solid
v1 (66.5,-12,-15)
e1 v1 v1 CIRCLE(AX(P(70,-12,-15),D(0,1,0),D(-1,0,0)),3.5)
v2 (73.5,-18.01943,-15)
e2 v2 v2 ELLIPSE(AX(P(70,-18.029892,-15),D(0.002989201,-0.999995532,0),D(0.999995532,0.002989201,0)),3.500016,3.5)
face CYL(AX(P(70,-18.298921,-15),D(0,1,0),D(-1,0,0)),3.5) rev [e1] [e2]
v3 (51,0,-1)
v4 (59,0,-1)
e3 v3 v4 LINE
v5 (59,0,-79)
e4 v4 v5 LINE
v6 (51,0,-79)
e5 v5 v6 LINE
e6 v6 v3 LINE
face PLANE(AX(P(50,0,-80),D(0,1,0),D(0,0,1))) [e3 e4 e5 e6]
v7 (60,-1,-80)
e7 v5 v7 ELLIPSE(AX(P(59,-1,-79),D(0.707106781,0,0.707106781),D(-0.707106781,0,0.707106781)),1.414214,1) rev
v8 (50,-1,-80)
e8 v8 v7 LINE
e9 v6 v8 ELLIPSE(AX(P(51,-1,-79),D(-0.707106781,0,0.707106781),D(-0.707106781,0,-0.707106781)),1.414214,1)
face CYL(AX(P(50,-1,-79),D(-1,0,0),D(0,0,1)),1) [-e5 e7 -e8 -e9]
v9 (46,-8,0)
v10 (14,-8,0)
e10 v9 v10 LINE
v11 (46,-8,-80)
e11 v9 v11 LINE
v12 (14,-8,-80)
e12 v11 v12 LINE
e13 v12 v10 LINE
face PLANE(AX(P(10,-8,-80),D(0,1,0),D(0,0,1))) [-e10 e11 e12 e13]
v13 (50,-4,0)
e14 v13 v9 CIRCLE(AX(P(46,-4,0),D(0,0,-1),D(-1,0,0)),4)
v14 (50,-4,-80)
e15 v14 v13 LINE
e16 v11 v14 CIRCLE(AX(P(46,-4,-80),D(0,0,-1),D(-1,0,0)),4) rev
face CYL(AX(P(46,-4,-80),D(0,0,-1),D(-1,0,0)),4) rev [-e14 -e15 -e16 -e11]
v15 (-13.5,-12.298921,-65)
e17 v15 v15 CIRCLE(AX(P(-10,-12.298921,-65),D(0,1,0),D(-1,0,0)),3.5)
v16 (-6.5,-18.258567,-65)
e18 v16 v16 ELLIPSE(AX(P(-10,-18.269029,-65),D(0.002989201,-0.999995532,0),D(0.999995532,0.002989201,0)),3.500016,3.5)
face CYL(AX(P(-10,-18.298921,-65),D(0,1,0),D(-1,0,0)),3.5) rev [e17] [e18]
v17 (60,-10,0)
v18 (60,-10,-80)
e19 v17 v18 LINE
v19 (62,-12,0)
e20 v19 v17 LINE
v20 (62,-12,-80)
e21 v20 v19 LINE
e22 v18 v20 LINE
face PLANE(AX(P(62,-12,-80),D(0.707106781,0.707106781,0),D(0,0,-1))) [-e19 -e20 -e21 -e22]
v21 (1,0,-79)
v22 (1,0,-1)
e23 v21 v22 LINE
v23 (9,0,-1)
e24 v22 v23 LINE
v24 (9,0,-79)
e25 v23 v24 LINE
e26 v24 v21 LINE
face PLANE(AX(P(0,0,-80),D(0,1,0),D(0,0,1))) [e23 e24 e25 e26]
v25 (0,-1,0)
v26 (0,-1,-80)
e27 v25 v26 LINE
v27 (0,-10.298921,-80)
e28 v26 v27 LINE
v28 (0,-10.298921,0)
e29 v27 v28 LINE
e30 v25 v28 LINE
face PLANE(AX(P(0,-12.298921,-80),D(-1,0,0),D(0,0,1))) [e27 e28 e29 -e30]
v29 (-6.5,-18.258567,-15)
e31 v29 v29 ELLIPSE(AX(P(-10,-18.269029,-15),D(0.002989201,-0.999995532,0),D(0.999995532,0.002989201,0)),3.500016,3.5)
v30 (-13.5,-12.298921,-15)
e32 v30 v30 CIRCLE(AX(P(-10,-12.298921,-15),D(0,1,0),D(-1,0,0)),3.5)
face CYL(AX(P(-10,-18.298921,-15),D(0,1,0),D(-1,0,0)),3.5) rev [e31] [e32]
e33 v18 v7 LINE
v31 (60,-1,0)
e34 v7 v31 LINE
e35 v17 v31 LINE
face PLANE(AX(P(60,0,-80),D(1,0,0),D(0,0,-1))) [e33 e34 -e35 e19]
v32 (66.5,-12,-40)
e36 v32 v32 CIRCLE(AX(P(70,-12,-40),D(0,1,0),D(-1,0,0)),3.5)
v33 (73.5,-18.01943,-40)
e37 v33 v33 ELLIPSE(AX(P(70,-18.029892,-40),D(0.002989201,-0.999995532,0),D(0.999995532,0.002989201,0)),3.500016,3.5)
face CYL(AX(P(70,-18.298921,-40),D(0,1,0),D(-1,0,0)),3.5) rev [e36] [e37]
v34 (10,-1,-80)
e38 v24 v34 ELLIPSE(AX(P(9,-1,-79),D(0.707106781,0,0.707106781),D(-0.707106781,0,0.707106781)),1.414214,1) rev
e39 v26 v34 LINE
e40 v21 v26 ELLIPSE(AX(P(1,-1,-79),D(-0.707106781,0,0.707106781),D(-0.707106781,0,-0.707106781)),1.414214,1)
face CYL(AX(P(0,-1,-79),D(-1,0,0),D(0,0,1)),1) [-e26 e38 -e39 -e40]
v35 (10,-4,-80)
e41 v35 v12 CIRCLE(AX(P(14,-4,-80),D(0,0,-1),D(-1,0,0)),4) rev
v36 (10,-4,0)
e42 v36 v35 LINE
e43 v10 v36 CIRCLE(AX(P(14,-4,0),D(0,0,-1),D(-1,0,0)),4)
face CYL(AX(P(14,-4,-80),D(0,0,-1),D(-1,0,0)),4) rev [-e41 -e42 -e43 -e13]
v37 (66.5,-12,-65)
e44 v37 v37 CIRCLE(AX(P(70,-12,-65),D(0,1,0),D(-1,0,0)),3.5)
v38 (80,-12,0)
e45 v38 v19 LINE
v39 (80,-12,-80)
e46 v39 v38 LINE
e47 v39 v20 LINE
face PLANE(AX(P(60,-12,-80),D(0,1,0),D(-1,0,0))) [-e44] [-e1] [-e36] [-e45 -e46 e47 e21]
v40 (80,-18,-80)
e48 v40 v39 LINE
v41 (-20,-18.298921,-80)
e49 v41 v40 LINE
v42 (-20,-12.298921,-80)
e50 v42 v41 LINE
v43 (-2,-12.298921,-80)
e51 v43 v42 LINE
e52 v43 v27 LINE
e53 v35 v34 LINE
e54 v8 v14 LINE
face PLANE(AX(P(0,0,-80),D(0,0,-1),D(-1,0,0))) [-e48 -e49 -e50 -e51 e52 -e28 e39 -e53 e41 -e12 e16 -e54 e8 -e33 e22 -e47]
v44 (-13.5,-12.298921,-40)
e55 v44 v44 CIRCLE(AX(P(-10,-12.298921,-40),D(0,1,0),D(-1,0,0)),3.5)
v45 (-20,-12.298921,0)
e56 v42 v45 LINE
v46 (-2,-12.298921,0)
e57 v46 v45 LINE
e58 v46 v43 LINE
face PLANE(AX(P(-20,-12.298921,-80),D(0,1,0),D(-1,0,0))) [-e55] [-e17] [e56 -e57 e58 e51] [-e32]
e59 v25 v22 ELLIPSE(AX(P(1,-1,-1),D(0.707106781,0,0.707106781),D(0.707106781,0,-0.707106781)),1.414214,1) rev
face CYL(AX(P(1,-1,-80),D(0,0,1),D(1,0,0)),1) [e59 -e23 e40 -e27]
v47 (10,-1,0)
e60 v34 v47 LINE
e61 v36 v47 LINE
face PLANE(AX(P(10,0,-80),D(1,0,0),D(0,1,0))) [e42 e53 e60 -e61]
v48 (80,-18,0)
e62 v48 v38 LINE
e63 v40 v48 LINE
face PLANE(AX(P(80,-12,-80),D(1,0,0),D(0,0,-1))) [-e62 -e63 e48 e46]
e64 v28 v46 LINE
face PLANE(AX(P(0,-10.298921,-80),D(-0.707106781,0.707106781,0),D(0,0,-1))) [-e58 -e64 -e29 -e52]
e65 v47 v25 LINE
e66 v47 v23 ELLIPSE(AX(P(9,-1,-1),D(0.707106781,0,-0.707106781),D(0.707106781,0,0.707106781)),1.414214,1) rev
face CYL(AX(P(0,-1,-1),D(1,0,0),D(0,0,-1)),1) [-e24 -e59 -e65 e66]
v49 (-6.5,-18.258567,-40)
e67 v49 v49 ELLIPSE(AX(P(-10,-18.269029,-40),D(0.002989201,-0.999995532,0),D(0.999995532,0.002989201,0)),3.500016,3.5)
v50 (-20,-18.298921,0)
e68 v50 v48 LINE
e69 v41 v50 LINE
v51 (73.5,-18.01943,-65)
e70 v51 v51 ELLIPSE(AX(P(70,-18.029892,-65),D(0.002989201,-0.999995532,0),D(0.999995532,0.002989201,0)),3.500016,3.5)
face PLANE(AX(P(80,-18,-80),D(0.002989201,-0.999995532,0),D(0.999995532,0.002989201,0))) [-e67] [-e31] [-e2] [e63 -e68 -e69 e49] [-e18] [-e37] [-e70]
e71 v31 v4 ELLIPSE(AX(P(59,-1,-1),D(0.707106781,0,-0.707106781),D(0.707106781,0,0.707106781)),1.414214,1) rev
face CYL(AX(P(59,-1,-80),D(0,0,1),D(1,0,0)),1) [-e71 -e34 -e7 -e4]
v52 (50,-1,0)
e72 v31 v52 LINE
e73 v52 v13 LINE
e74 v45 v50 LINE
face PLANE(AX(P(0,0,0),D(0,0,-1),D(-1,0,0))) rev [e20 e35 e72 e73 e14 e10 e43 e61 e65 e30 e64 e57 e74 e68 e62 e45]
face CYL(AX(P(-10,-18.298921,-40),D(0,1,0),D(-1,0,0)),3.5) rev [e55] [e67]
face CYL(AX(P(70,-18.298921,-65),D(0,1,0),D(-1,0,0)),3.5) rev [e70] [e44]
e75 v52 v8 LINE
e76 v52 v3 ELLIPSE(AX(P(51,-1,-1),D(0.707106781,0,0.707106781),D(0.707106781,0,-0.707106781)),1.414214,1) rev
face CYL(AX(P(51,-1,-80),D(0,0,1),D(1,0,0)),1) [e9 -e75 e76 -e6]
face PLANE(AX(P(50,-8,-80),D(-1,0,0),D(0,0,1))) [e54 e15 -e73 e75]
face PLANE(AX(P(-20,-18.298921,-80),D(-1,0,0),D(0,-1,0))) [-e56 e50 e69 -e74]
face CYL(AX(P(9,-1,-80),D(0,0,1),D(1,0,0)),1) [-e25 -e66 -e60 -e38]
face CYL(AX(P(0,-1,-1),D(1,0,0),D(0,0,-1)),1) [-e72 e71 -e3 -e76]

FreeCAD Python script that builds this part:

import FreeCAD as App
import Part
import Sketcher

V = App.Vector


def edges_at(feature, points):
    """Names of the edges that pass closest to the given points."""
    edges = feature.Shape.Edges
    near = lambda p: min(range(len(edges)), key=lambda i: edges[i].distToShape(Part.Vertex(*p))[0])
    return sorted({f"Edge{near(p) + 1}" for p in points})


def add_polygon(sketch, points):
    """Adds a closed chain of lines whose ends are joined by coincident constraints."""
    first, n = sketch.GeometryCount, len(points)
    for a, b in zip(points, points[1:] + points[:1]):
        sketch.addGeometry(Part.LineSegment(App.Vector(*a, 0), App.Vector(*b, 0)), False)
    for i in range(n):
        sketch.addConstraint(Sketcher.Constraint("Coincident", first + i, 2, first + (i + 1) % n, 1))

doc = App.newDocument("Part")
body = doc.addObject("PartDesign::Body", "Body")

# Sketch on XY plane
sketch1 = body.newObject("Sketcher::SketchObject", "Sketch")
sketch1.AttachmentSupport = (doc.getObject("XY_Plane"), [""])
sketch1.MapMode = "FlatFace"
add_polygon(sketch1, [(10, 0), (0, 0), (0, -12), (-20, -12), (-20, -18), (80, -18), (80, -12), (60, -12), (60, 0), (50, 0), (50, -8), (10, -8)])  # lines 0-11
sketch1.addConstraint(Sketcher.Constraint("Horizontal", 0))
sketch1.addConstraint(Sketcher.Constraint("Vertical", 1))
sketch1.addConstraint(Sketcher.Constraint("Horizontal", 2))
sketch1.addConstraint(Sketcher.Constraint("Vertical", 3))
sketch1.addConstraint(Sketcher.Constraint("Vertical", 5))
sketch1.addConstraint(Sketcher.Constraint("Horizontal", 6))
sketch1.addConstraint(Sketcher.Constraint("Vertical", 7))
sketch1.addConstraint(Sketcher.Constraint("Horizontal", 8))
sketch1.addConstraint(Sketcher.Constraint("Vertical", 9))
sketch1.addConstraint(Sketcher.Constraint("Horizontal", 10))
sketch1.addConstraint(Sketcher.Constraint("Vertical", 11))
sketch1.addConstraint(Sketcher.Constraint("Coincident", 0, 2, -1, 1))
sketch1.addConstraint(Sketcher.Constraint("PointOnObject", 7, 2, -1))
sketch1.addConstraint(Sketcher.Constraint("Equal", 2, 6))
sketch1.addConstraint(Sketcher.Constraint("Equal", 0, 8))
sketch1.addConstraint(Sketcher.Constraint("Equal", 3, 5))
sketch1.addConstraint(Sketcher.Constraint("DistanceX", 0, 2, 0, 1, 10.0))
sketch1.addConstraint(Sketcher.Constraint("DistanceX", 2, 2, 2, 1, 20.0))
sketch1.addConstraint(Sketcher.Constraint("DistanceX", 10, 2, 10, 1, 40.0))
sketch1.addConstraint(Sketcher.Constraint("DistanceY", 3, 2, 3, 1, 6.0))
sketch1.addConstraint(Sketcher.Constraint("DistanceY", 7, 1, 7, 2, 12.0))
sketch1.addConstraint(Sketcher.Constraint("DistanceY", 9, 2, 9, 1, 8.0))
sketch1.addConstraint(Sketcher.Constraint("DistanceY", 1, 2, 1, 1, 12.298921))
pad1 = body.newObject("PartDesign::Pad", "Pad")
pad1.Profile = sketch1
pad1.Length = 80
pad1.Reversed = True

# Sketch on XZ plane
sketch2 = body.newObject("Sketcher::SketchObject", "Sketch001")
sketch2.AttachmentSupport = (doc.getObject("XZ_Plane"), [""])
sketch2.MapMode = "FlatFace"
sketch2.AttachmentOffset = App.Placement(V(0, 0, 12.298921), App.Rotation())
sketch2.addGeometry(Part.Circle(V(-10, -65, 0), V(0, 0, 1), 3.5), False)
sketch2.addGeometry(Part.Circle(V(-10, -40, 0), V(0, 0, 1), 3.5), False)
sketch2.addGeometry(Part.Circle(V(-10, -15, 0), V(0, 0, 1), 3.5), False)
sketch2.addConstraint(Sketcher.Constraint("Equal", 0, 1))
sketch2.addConstraint(Sketcher.Constraint("Equal", 1, 2))
sketch2.addConstraint(Sketcher.Constraint("Vertical", 0, 3, 1, 3))
sketch2.addConstraint(Sketcher.Constraint("Vertical", 1, 3, 2, 3))
sketch2.addConstraint(Sketcher.Constraint("Diameter", 0, 7.0))
sketch2.addConstraint(Sketcher.Constraint("DistanceX", 0, 3, -1, 1, 10.0))
sketch2.addConstraint(Sketcher.Constraint("DistanceY", 0, 3, -1, 1, 65.0))
sketch2.addConstraint(Sketcher.Constraint("DistanceY", 1, 3, -1, 1, 40.0))
sketch2.addConstraint(Sketcher.Constraint("DistanceY", 2, 3, -1, 1, 15.0))
pocket1 = body.newObject("PartDesign::Pocket", "Pocket")
pocket1.Profile = sketch2
pocket1.Type = "ThroughAll"
pocket1.Reversed = True

# Sketch on XZ plane
sketch3 = body.newObject("Sketcher::SketchObject", "Sketch002")
sketch3.AttachmentSupport = (doc.getObject("XZ_Plane"), [""])
sketch3.MapMode = "FlatFace"
sketch3.AttachmentOffset = App.Placement(V(0, 0, 12), App.Rotation())
sketch3.addGeometry(Part.Circle(V(70, -65, 0), V(0, 0, 1), 3.5), False)
sketch3.addGeometry(Part.Circle(V(70, -40, 0), V(0, 0, 1), 3.5), False)
sketch3.addGeometry(Part.Circle(V(70, -15, 0), V(0, 0, 1), 3.5), False)
sketch3.addConstraint(Sketcher.Constraint("Equal", 0, 1))
sketch3.addConstraint(Sketcher.Constraint("Equal", 1, 2))
sketch3.addConstraint(Sketcher.Constraint("Vertical", 0, 3, 1, 3))
sketch3.addConstraint(Sketcher.Constraint("Vertical", 1, 3, 2, 3))
sketch3.addConstraint(Sketcher.Constraint("Diameter", 0, 7.0))
sketch3.addConstraint(Sketcher.Constraint("DistanceX", -1, 1, 0, 3, 70.0))
sketch3.addConstraint(Sketcher.Constraint("DistanceY", 0, 3, -1, 1, 65.0))
sketch3.addConstraint(Sketcher.Constraint("DistanceY", 1, 3, -1, 1, 40.0))
sketch3.addConstraint(Sketcher.Constraint("DistanceY", 2, 3, -1, 1, 15.0))
pocket2 = body.newObject("PartDesign::Pocket", "Pocket001")
pocket2.Profile = sketch3
pocket2.Type = "ThroughAll"
pocket2.Reversed = True
doc.recompute()

chamfer = body.newObject("PartDesign::Chamfer", "Chamfer")
chamfer.Base = (pocket2, edges_at(pocket2, [(60, -12, -40), (0, -12.299, -40)]))
chamfer.Size = 2
doc.recompute()

fillet = body.newObject("PartDesign::Fillet", "Fillet")
fillet.Base = (chamfer, edges_at(chamfer, [(10, -8, -40), (50, -8, -40)]))
fillet.Radius = 4
doc.recompute()

fillet2 = body.newObject("PartDesign::Fillet", "Fillet001")
fillet2.Base = (fillet, edges_at(fillet, [
    (5, 0, 0),
    (55, 0, 0),
    (0, 0, -40),
    (10, 0, -40),
    (50, 0, -40),
    (60, 0, -40),
    (55, 0, -80),
    (5, 0, -80),
]))
fillet2.Radius = 1

doc.recompute()
